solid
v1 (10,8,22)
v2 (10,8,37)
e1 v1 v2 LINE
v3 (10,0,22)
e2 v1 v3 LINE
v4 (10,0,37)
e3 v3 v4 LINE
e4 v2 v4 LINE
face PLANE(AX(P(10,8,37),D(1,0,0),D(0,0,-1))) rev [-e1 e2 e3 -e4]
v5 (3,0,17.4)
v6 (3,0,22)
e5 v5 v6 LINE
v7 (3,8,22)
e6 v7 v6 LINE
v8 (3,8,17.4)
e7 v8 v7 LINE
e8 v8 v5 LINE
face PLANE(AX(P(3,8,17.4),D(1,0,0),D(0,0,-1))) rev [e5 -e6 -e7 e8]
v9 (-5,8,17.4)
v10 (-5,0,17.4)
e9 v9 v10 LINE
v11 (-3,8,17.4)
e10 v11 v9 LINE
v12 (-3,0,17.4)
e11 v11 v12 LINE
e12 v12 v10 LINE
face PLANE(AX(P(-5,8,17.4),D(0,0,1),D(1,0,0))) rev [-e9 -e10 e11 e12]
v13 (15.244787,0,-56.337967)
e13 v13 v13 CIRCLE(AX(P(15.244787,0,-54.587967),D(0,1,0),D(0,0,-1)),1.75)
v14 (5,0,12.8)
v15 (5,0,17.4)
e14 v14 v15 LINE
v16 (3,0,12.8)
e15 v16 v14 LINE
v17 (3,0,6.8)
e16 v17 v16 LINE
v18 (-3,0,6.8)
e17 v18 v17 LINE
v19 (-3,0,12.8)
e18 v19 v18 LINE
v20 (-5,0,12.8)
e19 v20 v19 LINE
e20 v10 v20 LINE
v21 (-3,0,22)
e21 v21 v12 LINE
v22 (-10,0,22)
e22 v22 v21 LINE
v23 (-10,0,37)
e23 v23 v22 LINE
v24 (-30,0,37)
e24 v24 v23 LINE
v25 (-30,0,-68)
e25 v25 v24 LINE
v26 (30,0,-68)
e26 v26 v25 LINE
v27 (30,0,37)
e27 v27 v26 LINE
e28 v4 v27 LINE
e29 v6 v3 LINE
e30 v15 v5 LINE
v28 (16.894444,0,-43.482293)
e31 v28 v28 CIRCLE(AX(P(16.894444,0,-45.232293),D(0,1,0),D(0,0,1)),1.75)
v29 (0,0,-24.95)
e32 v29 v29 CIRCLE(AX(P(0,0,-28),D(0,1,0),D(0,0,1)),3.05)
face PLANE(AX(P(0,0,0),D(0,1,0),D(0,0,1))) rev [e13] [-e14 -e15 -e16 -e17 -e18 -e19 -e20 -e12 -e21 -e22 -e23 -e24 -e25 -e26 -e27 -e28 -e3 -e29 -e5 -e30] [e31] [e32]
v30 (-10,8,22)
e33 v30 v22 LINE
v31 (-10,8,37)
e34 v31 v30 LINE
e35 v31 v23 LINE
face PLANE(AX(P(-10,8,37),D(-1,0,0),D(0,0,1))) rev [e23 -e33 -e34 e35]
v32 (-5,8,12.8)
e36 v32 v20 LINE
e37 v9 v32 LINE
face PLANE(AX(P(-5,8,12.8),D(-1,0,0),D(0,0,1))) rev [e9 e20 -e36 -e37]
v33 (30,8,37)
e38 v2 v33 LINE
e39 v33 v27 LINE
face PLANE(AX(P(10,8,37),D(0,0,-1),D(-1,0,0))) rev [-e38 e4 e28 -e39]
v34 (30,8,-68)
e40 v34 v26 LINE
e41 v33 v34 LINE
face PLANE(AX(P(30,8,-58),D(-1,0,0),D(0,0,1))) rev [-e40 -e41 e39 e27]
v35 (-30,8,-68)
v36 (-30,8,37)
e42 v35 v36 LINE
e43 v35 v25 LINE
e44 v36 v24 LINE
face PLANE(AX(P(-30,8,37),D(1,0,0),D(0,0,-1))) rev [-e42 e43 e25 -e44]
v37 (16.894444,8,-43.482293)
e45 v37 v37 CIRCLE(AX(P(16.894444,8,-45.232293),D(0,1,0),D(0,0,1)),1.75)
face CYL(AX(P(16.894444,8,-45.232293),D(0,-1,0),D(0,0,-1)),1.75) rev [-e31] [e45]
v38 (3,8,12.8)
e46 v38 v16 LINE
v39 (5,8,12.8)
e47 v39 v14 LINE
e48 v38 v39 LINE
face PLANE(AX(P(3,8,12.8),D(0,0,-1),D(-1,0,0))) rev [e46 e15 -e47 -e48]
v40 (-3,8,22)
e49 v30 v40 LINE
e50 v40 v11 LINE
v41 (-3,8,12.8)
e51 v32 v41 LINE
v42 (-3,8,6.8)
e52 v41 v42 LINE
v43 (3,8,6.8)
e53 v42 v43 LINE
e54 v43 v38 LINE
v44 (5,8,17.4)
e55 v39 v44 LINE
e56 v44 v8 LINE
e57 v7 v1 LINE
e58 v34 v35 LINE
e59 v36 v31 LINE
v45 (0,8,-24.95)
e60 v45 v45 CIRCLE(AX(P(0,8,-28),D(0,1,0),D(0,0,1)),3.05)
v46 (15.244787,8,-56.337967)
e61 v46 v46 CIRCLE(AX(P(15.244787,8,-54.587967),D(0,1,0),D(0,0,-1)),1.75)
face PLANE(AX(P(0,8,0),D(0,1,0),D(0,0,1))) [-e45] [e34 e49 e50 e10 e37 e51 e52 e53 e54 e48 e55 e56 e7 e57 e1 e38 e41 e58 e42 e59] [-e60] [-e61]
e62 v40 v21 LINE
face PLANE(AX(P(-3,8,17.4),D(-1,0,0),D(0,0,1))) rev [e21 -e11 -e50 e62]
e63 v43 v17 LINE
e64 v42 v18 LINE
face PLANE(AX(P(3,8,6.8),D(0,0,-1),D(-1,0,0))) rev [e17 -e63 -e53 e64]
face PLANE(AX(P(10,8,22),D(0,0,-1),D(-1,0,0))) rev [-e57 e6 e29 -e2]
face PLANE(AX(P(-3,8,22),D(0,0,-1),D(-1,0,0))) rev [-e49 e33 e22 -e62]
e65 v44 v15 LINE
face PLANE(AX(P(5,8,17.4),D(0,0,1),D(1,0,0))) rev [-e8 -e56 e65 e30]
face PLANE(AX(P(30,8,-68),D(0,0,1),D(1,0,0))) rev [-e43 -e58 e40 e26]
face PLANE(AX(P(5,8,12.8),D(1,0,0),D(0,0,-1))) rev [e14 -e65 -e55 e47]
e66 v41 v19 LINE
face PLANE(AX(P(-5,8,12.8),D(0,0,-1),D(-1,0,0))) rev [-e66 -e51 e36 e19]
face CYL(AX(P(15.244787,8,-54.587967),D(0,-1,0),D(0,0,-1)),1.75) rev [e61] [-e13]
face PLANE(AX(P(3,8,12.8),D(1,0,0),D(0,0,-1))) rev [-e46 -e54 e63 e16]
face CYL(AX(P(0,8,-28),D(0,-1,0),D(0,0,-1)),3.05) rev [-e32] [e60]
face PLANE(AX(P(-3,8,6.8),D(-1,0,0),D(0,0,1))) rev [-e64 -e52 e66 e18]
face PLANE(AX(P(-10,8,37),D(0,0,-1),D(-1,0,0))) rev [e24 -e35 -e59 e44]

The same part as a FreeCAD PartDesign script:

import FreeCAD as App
import Part
import Sketcher
from FreeCAD import Vector
Q = App.Units.Quantity


def add_polygon(sketch, points):
    """Adds a closed chain of lines whose ends are joined by coincident constraints."""
    first, n = sketch.GeometryCount, len(points)
    for a, b in zip(points, points[1:] + points[:1]):
        sketch.addGeometry(Part.LineSegment(App.Vector(*a, 0), App.Vector(*b, 0)), False)
    for i in range(n):
        sketch.addConstraint(Sketcher.Constraint("Coincident", first + i, 2, first + (i + 1) % n, 1))

doc = App.newDocument("Part")
params = doc.addObject("Spreadsheet::Sheet", "Params")
for row, (alias, value) in enumerate([
    ("sketch1_diameter", "6.1 mm"),
    ("sketch1_diameter2", "3.5 mm"),
    ("sketch1_width", "7 mm"),
    ("sketch1_width2", "2 mm"),
    ("sketch1_width3", "6 mm"),
    ("pad1_length", "8 mm"),
], start=1):
    params.set(f"A{row}", alias)
    params.set(f"B{row}", "=" + value)
    params.setAlias(f"B{row}", alias)

body = doc.addObject("PartDesign::Body", "Body")

sketch1 = body.newObject("Sketcher::SketchObject", "Sketch")
sketch1.AttachmentSupport = (doc.getObject("XZ_Plane"), [""])
sketch1.MapMode = "FlatFace"
add_polygon(sketch1, [(-10, 37), (-10, 22), (-3, 22), (-3, 17.4), (-5, 17.4), (-5, 12.8), (-3, 12.8), (-3, 6.8), (3, 6.8), (3, 12.8), (5, 12.8), (5, 17.4), (3, 17.4), (3, 22), (10, 22), (10, 37), (30, 37), (30, -68), (-30, -68), (-30, 37)])
sketch1.addGeometry(Part.Circle(Vector(0, -28, 0), Vector(0, 0, 1), 3), False)
sketch1.addGeometry(Part.Circle(Vector(16.9, -45.2, 0), Vector(0, 0, 1), 1.8), False)
sketch1.addGeometry(Part.Circle(Vector(15.2, -54.6, 0), Vector(0, 0, 1), 1.8), False)
sketch1.addConstraint([
    Sketcher.Constraint("Vertical", 0),
    Sketcher.Constraint("Horizontal", 1),
    Sketcher.Constraint("Vertical", 2),
    Sketcher.Constraint("Horizontal", 3),
    Sketcher.Constraint("Vertical", 4),
    Sketcher.Constraint("Horizontal", 5),
    Sketcher.Constraint("Vertical", 6),
    Sketcher.Constraint("Horizontal", 7),
    Sketcher.Constraint("Vertical", 8),
    Sketcher.Constraint("Horizontal", 9),
    Sketcher.Constraint("Vertical", 10),
    Sketcher.Constraint("Horizontal", 11),
    Sketcher.Constraint("Vertical", 12),
    Sketcher.Constraint("Horizontal", 13),
    Sketcher.Constraint("Vertical", 14),
    Sketcher.Constraint("Horizontal", 15),
    Sketcher.Constraint("Vertical", 16),
    Sketcher.Constraint("Horizontal", 17),
    Sketcher.Constraint("Vertical", 18),
    Sketcher.Constraint("Horizontal", 19),
    Sketcher.Constraint("Equal", 21, 22),
    Sketcher.Constraint("Symmetric", 5, 2, 8, 2, -2),
    Sketcher.Constraint("Symmetric", 3, 2, 10, 2, -2),
    Sketcher.Constraint("Symmetric", 1, 2, 12, 2, -2),
    Sketcher.Constraint("Symmetric", 15, 2, 18, 2, -2),
    Sketcher.Constraint("PointOnObject", 20, 3, -2),
    Sketcher.Constraint("Vertical", 2, 2, 5, 2),
    Sketcher.Constraint("Equal", 1, 13),
    Sketcher.Constraint("Equal", 2, 4),
    Sketcher.Constraint("Equal", 7, 6),
    Sketcher.Constraint("Diameter", 20, Q("6.1 mm")),
    Sketcher.Constraint("Diameter", 21, Q("3.5 mm")),
    Sketcher.Constraint("DistanceX", 1, 1, 1, 2, Q("7 mm")),
    Sketcher.Constraint("DistanceX", 3, 2, 3, 1, Q("2 mm")),
    Sketcher.Constraint("DistanceX", 7, 1, 7, 2, Q("6 mm")),
    Sketcher.Constraint("DistanceX", 15, 1, 15, 2, Q("20 mm")),
    Sketcher.Constraint("DistanceY", 0, 2, 0, 1, Q("15 mm")),
    Sketcher.Constraint("DistanceY", 16, 2, 16, 1, Q("105 mm")),
    Sketcher.Constraint("DistanceY", 2, 2, 2, 1, Q("4.6 mm")),
    Sketcher.Constraint("DistanceY", 20, 3, -1, 1, Q("28 mm")),
    Sketcher.Constraint("DistanceY", -1, 1, 0, 2, Q("22 mm")),
    Sketcher.Constraint("DistanceX", -1, 1, 21, 3, Q("16.894444 mm")),
    Sketcher.Constraint("DistanceY", 21, 3, -1, 1, Q("45.232293 mm")),
    Sketcher.Constraint("DistanceX", -1, 1, 22, 3, Q("15.244787 mm")),
    Sketcher.Constraint("DistanceY", 22, 3, -1, 1, Q("54.587967 mm")),
])
sketch1.setExpression("Constraints[50]", "Params.sketch1_diameter")
sketch1.setExpression("Constraints[51]", "Params.sketch1_diameter2")
sketch1.setExpression("Constraints[52]", "Params.sketch1_width")
sketch1.setExpression("Constraints[53]", "Params.sketch1_width2")
sketch1.setExpression("Constraints[54]", "Params.sketch1_width3")
pad1 = body.newObject("PartDesign::Pad", "Pad")
pad1.Profile = sketch1
pad1.setExpression("Length", "Params.pad1_length")
pad1.Reversed = True

doc.recompute()
